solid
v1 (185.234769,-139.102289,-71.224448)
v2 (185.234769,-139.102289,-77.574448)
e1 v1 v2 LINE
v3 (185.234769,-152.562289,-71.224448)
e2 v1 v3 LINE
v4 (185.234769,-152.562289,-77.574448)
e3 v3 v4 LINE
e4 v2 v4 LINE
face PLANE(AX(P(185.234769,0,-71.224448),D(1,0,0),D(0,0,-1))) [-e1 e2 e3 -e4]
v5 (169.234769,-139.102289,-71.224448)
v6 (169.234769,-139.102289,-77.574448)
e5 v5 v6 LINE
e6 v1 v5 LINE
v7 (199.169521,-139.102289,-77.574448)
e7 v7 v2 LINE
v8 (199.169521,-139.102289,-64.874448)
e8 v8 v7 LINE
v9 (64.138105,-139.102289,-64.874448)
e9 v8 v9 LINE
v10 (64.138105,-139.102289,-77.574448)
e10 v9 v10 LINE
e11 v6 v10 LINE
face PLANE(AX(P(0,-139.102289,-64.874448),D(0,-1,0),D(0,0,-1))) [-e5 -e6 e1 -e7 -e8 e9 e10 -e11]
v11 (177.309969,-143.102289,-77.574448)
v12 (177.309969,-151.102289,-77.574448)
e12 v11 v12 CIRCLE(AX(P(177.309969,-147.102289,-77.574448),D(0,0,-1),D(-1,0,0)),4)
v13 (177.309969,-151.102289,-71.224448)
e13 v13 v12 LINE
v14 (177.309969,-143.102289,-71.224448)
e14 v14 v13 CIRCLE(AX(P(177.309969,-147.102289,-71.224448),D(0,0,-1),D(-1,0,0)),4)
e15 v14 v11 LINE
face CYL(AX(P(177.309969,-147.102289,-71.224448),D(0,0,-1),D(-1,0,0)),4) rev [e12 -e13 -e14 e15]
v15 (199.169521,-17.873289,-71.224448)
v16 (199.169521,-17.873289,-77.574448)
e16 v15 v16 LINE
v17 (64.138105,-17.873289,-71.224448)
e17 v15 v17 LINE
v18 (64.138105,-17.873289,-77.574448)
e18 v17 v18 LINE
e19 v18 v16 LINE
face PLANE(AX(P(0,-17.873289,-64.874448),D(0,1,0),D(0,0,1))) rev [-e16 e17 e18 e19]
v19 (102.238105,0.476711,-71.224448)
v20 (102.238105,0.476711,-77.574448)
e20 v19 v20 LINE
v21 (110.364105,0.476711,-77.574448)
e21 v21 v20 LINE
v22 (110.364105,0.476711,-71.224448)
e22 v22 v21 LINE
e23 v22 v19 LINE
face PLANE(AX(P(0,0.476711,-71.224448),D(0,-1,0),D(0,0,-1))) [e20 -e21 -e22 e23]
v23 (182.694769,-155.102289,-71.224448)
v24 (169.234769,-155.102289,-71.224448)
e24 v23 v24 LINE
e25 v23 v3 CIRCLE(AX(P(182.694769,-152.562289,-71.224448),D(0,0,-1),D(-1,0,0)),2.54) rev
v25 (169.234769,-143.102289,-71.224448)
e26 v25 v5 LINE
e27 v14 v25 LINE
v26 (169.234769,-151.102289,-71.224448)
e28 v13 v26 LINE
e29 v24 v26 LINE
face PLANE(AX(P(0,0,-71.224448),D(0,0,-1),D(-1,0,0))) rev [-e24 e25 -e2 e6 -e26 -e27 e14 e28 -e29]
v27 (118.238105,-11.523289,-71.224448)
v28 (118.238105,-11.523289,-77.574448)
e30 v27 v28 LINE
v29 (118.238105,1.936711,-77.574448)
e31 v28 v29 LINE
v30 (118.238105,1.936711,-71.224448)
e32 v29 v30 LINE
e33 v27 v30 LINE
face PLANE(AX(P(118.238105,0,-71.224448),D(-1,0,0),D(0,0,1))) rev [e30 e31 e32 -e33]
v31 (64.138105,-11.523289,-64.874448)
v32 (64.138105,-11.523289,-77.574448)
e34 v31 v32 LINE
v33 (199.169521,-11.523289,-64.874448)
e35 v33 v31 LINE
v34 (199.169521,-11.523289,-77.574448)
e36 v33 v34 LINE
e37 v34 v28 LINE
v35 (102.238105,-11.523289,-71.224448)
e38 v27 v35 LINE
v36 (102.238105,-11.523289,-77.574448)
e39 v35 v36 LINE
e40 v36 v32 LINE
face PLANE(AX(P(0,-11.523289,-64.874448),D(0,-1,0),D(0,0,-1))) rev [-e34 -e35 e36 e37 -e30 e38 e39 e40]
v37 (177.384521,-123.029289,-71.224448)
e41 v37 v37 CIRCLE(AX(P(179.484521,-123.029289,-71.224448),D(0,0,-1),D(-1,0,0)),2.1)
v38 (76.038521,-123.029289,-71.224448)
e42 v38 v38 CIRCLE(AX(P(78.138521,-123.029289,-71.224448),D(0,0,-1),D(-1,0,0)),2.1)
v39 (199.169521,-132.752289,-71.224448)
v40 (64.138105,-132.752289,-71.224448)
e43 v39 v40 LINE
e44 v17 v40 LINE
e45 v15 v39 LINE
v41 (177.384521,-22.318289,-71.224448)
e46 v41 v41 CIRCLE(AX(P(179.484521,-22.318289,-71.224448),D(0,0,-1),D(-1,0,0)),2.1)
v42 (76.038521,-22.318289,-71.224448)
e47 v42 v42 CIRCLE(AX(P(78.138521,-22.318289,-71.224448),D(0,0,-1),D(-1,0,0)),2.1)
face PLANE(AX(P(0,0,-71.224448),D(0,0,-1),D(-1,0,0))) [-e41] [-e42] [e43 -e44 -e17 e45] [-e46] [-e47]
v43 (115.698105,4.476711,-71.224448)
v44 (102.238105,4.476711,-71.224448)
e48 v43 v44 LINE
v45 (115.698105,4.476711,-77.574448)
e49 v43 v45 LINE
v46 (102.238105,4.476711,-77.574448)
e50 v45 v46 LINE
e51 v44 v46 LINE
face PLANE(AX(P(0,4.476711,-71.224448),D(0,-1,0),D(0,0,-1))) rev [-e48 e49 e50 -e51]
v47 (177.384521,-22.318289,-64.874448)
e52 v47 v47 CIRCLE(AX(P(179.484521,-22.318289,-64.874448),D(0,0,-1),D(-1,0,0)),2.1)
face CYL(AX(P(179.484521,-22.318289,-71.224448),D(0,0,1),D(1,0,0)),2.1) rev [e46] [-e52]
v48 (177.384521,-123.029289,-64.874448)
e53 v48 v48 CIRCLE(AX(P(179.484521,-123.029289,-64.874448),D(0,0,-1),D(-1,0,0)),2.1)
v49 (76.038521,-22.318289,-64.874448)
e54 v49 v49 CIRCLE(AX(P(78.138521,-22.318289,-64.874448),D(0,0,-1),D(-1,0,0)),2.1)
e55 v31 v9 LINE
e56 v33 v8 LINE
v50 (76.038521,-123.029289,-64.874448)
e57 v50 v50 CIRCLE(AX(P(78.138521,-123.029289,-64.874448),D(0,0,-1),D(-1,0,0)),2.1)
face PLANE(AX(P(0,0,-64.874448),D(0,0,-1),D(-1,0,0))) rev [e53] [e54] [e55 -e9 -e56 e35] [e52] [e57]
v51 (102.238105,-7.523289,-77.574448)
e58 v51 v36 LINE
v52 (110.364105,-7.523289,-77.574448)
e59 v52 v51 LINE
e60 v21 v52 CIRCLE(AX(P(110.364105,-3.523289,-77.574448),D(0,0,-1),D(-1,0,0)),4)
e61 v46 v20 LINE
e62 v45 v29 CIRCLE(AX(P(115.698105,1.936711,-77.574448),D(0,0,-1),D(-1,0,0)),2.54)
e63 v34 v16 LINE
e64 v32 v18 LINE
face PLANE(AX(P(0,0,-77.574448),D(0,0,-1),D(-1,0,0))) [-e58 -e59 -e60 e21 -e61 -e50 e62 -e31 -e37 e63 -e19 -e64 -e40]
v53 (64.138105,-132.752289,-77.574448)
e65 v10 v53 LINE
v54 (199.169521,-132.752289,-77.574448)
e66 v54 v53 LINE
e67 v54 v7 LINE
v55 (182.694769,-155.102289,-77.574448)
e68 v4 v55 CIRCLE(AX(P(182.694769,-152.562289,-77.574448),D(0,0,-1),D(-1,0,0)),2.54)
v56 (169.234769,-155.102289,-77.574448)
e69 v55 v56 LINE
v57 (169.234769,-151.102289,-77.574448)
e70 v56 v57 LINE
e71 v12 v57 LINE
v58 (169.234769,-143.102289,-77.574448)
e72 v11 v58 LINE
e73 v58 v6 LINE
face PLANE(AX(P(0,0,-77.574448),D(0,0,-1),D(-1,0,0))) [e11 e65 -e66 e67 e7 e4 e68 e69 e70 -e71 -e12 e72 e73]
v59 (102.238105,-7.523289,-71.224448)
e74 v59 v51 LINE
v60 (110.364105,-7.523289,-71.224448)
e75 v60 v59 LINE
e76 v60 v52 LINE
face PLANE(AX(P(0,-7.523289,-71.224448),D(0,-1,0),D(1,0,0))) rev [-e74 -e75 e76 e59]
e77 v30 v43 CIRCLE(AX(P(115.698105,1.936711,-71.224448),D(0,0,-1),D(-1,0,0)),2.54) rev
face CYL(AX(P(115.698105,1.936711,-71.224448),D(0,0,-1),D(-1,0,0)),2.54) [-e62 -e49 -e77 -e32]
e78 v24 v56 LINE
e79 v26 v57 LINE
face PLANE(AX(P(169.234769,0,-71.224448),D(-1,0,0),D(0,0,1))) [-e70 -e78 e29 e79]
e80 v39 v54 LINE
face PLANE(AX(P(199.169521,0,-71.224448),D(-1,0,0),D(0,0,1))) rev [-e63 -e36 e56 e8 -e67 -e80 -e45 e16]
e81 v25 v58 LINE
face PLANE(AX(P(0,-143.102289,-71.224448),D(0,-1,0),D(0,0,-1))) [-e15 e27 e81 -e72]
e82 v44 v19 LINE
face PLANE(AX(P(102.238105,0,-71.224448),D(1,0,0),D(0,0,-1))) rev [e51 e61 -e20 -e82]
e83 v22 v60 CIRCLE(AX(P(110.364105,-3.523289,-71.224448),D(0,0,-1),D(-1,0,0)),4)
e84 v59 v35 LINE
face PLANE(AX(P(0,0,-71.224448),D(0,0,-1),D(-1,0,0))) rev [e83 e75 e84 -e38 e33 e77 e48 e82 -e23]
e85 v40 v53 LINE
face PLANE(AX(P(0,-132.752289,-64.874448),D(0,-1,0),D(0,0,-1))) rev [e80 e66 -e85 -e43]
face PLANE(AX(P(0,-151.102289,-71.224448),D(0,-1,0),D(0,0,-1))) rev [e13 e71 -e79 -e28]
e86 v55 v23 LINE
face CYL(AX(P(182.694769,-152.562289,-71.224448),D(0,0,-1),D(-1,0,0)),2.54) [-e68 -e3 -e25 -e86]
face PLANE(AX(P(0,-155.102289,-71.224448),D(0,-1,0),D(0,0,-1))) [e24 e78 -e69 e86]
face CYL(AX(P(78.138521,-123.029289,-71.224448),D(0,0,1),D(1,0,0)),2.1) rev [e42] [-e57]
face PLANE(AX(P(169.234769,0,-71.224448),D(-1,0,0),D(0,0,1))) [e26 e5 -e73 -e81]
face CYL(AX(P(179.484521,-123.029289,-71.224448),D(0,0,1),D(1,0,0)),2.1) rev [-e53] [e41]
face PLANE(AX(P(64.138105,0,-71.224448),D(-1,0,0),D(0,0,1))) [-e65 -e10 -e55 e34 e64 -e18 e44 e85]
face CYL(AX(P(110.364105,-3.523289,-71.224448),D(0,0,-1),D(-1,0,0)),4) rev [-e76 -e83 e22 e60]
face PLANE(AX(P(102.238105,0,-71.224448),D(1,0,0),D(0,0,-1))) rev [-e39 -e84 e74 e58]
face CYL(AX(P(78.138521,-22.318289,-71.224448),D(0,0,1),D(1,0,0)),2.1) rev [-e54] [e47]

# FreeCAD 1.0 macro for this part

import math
import FreeCAD as App
import Part
import Sketcher
from FreeCAD import Vector
Q = App.Units.Quantity


def edges_at(feature, points):
    """Names of the edges that pass closest to the given points."""
    edges = feature.Shape.Edges
    near = lambda p: min(range(len(edges)), key=lambda i: edges[i].distToShape(Part.Vertex(*p))[0])
    return sorted({f"Edge{near(p) + 1}" for p in points})

doc = App.newDocument("Part")
params = doc.addObject("Spreadsheet::Sheet", "Params")
for row, (alias, value) in enumerate([
    ("sketch1_diameter", "4.2 mm"),
    ("pad1_length", "6.35 mm"),
    ("sketch2_height", "6.35 mm"),
    ("pad2_length", "6.35 mm"),
    ("pad2_length2", "6.35 mm"),
    ("sketch3_radius", "4 mm"),
    ("sketch3_width", "16 mm"),
    ("pad3_length", "6.35 mm"),
    ("fillet_radius", "2.54 mm"),
    ("fillet2_radius", "2.54 mm"),
], start=1):
    params.set(f"A{row}", alias)
    params.set(f"B{row}", "=" + value)
    params.setAlias(f"B{row}", alias)

body = doc.addObject("PartDesign::Body", "Body")

# Sketch on XY plane
sketch1 = body.newObject("Sketcher::SketchObject", "Sketch")
sketch1.AttachmentSupport = (doc.getObject("XY_Plane"), [""])
sketch1.MapMode = "FlatFace"
sketch1.AttachmentOffset = App.Placement(Vector(0, 0, -64.874448), App.Rotation())
sketch1.addGeometry(Part.LineSegment(Vector(199.169521, -17.873289, 0), Vector(199.169521, -132.752289, 0)), False)
sketch1.addGeometry(Part.LineSegment(Vector(199.169521, -132.752289, 0), Vector(64.138105, -132.752289, 0)), False)
sketch1.addGeometry(Part.LineSegment(Vector(64.138105, -132.752289, 0), Vector(64.138105, -17.873289, 0)), False)
sketch1.addGeometry(Part.LineSegment(Vector(64.138105, -17.873289, 0), Vector(199.169521, -17.873289, 0)), False)
sketch1.addGeometry(Part.Circle(Vector(179.484521, -123.029289, 0), Vector(0, 0, 1), 2.1), False)
sketch1.addGeometry(Part.Circle(Vector(78.138521, -123.029289, 0), Vector(0, 0, 1), 2.1), False)
sketch1.addGeometry(Part.Circle(Vector(179.484521, -22.318289, 0), Vector(0, 0, 1), 2.1), False)
sketch1.addGeometry(Part.Circle(Vector(78.138521, -22.318289, 0), Vector(0, 0, 1), 2.1), False)
sketch1.addConstraint(Sketcher.Constraint("Coincident", 0, 2, 1, 1))
sketch1.addConstraint(Sketcher.Constraint("Coincident", 1, 2, 2, 1))
sketch1.addConstraint(Sketcher.Constraint("Coincident", 2, 2, 3, 1))
sketch1.addConstraint(Sketcher.Constraint("Coincident", 3, 2, 0, 1))
sketch1.addConstraint(Sketcher.Constraint("Vertical", 0))
sketch1.addConstraint(Sketcher.Constraint("Horizontal", 1))
sketch1.addConstraint(Sketcher.Constraint("Vertical", 2))
sketch1.addConstraint(Sketcher.Constraint("Horizontal", 3))
sketch1.addConstraint(Sketcher.Constraint("Equal", 4, 5))
sketch1.addConstraint(Sketcher.Constraint("Equal", 5, 6))
sketch1.addConstraint(Sketcher.Constraint("Equal", 6, 7))
sketch1.addConstraint(Sketcher.Constraint("Horizontal", 4, 3, 5, 3))
sketch1.addConstraint(Sketcher.Constraint("Horizontal", 6, 3, 7, 3))
sketch1.addConstraint(Sketcher.Constraint("Vertical", 4, 3, 6, 3))
sketch1.addConstraint(Sketcher.Constraint("Vertical", 5, 3, 7, 3))
sketch1.addConstraint(Sketcher.Constraint("Diameter", 4, Q("4.2 mm")))
sketch1.addConstraint(Sketcher.Constraint("DistanceY", 0, 2, 0, 1, Q("114.879 mm")))
sketch1.addConstraint(Sketcher.Constraint("DistanceX", 5, 3, 4, 3, Q("101.346 mm")))
sketch1.addConstraint(Sketcher.Constraint("DistanceY", 4, 3, 6, 3, Q("100.711 mm")))
sketch1.addConstraint(Sketcher.Constraint("DistanceX", 4, 3, 0, 2, Q("19.685 mm")))
sketch1.addConstraint(Sketcher.Constraint("DistanceY", 0, 2, 4, 3, Q("9.723 mm")))
sketch1.addConstraint(Sketcher.Constraint("DistanceX", 1, 2, 1, 1, Q("135.031416 mm")))
sketch1.addConstraint(Sketcher.Constraint("DistanceX", -1, 1, 4, 3, Q("179.484521 mm")))
sketch1.addConstraint(Sketcher.Constraint("DistanceY", 4, 3, -1, 1, Q("123.029289 mm")))
sketch1.setExpression("Constraints[15]", "Params.sketch1_diameter")
pad1 = body.newObject("PartDesign::Pad", "Pad")
pad1.Profile = sketch1
pad1.setExpression("Length", "Params.pad1_length")
pad1.Reversed = True

# Sketch on XY plane
sketch2 = body.newObject("Sketcher::SketchObject", "Sketch001")
sketch2.AttachmentSupport = (doc.getObject("XY_Plane"), [""])
sketch2.MapMode = "FlatFace"
sketch2.AttachmentOffset = App.Placement(Vector(0, 0, -71.224448), App.Rotation())
sketch2.addGeometry(Part.LineSegment(Vector(199.169521, -132.752289, 0), Vector(199.169521, -139.102289, 0)), False)
sketch2.addGeometry(Part.LineSegment(Vector(199.169521, -139.102289, 0), Vector(64.138105, -139.102289, 0)), False)
sketch2.addGeometry(Part.LineSegment(Vector(64.138105, -139.102289, 0), Vector(64.138105, -132.752289, 0)), False)
sketch2.addGeometry(Part.LineSegment(Vector(64.138105, -132.752289, 0), Vector(199.169521, -132.752289, 0)), False)
sketch2.addGeometry(Part.LineSegment(Vector(199.169521, -11.523289, 0), Vector(199.169521, -17.873289, 0)), False)
sketch2.addGeometry(Part.LineSegment(Vector(199.169521, -17.873289, 0), Vector(64.138105, -17.873289, 0)), False)
sketch2.addGeometry(Part.LineSegment(Vector(64.138105, -17.873289, 0), Vector(64.138105, -11.523289, 0)), False)
sketch2.addGeometry(Part.LineSegment(Vector(64.138105, -11.523289, 0), Vector(199.169521, -11.523289, 0)), False)
sketch2.addConstraint(Sketcher.Constraint("Coincident", 0, 2, 1, 1))
sketch2.addConstraint(Sketcher.Constraint("Coincident", 1, 2, 2, 1))
sketch2.addConstraint(Sketcher.Constraint("Coincident", 2, 2, 3, 1))
sketch2.addConstraint(Sketcher.Constraint("Coincident", 3, 2, 0, 1))
sketch2.addConstraint(Sketcher.Constraint("Coincident", 4, 2, 5, 1))
sketch2.addConstraint(Sketcher.Constraint("Coincident", 5, 2, 6, 1))
sketch2.addConstraint(Sketcher.Constraint("Coincident", 6, 2, 7, 1))
sketch2.addConstraint(Sketcher.Constraint("Coincident", 7, 2, 4, 1))
sketch2.addConstraint(Sketcher.Constraint("Vertical", 0))
sketch2.addConstraint(Sketcher.Constraint("Horizontal", 1))
sketch2.addConstraint(Sketcher.Constraint("Vertical", 2))
sketch2.addConstraint(Sketcher.Constraint("Horizontal", 3))
sketch2.addConstraint(Sketcher.Constraint("Vertical", 4))
sketch2.addConstraint(Sketcher.Constraint("Horizontal", 5))
sketch2.addConstraint(Sketcher.Constraint("Vertical", 6))
sketch2.addConstraint(Sketcher.Constraint("Horizontal", 7))
sketch2.addConstraint(Sketcher.Constraint("Vertical", 3, 2, 4, 2))
sketch2.addConstraint(Sketcher.Constraint("Vertical", 2, 2, 5, 2))
sketch2.addConstraint(Sketcher.Constraint("Equal", 2, 4))
sketch2.addConstraint(Sketcher.Constraint("DistanceY", 0, 2, 0, 1, Q("6.35 mm")))
sketch2.addConstraint(Sketcher.Constraint("DistanceY", 3, 2, 4, 2, Q("114.879 mm")))
sketch2.addConstraint(Sketcher.Constraint("DistanceX", 1, 2, 1, 1, Q("135.031416 mm")))
sketch2.addConstraint(Sketcher.Constraint("DistanceX", -1, 1, 0, 2, Q("199.169521 mm")))
sketch2.addConstraint(Sketcher.Constraint("DistanceY", 0, 2, -1, 1, Q("139.102289 mm")))
sketch2.setExpression("Constraints[19]", "Params.sketch2_height")
pad2 = body.newObject("PartDesign::Pad", "Pad001")
pad2.Profile = sketch2
pad2.Type = "TwoLengths"
pad2.setExpression("Length", "Params.pad2_length")
pad2.setExpression("Length2", "Params.pad2_length2")
pad2.Reversed = True

# Sketch on XY plane
sketch3 = body.newObject("Sketcher::SketchObject", "Sketch002")
sketch3.AttachmentSupport = (doc.getObject("XY_Plane"), [""])
sketch3.MapMode = "FlatFace"
sketch3.AttachmentOffset = App.Placement(Vector(0, 0, -77.574448), App.Rotation())
sketch3.addGeometry(Part.LineSegment(Vector(118.238105, 4.476711, 0), Vector(118.238105, -11.523289, 0)), False)
sketch3.addGeometry(Part.LineSegment(Vector(118.238105, -11.523289, 0), Vector(102.238105, -11.523289, 0)), False)
sketch3.addGeometry(Part.LineSegment(Vector(102.238105, -11.523289, 0), Vector(102.238105, -7.523289, 0)), False)
sketch3.addGeometry(Part.LineSegment(Vector(102.238105, -7.523289, 0), Vector(110.364105, -7.523289, 0)), False)
sketch3.addGeometry(Part.ArcOfCircle(Part.Circle(Vector(110.364105, -3.523289, 0), Vector(0, 0, 1), 4), math.radians(-90), math.radians(90)), False)
sketch3.addGeometry(Part.LineSegment(Vector(110.364105, 0.476711, 0), Vector(102.238105, 0.476711, 0)), False)
sketch3.addGeometry(Part.LineSegment(Vector(102.238105, 0.476711, 0), Vector(102.238105, 4.476711, 0)), False)
sketch3.addGeometry(Part.LineSegment(Vector(102.238105, 4.476711, 0), Vector(118.238105, 4.476711, 0)), False)
sketch3.addGeometry(Part.LineSegment(Vector(169.234769, -139.102289, 0), Vector(185.234769, -139.102289, 0)), False)
sketch3.addGeometry(Part.LineSegment(Vector(185.234769, -139.102289, 0), Vector(185.234769, -155.102289, 0)), False)
sketch3.addGeometry(Part.LineSegment(Vector(185.234769, -155.102289, 0), Vector(169.234769, -155.102289, 0)), False)
sketch3.addGeometry(Part.LineSegment(Vector(169.234769, -155.102289, 0), Vector(169.234769, -151.102289, 0)), False)
sketch3.addGeometry(Part.LineSegment(Vector(169.234769, -151.102289, 0), Vector(177.309969, -151.102289, 0)), False)
sketch3.addGeometry(Part.ArcOfCircle(Part.Circle(Vector(177.309969, -147.102289, 0), Vector(0, 0, 1), 4), math.radians(-90), math.radians(90)), False)
sketch3.addGeometry(Part.LineSegment(Vector(177.309969, -143.102289, 0), Vector(169.234769, -143.102289, 0)), False)
sketch3.addGeometry(Part.LineSegment(Vector(169.234769, -143.102289, 0), Vector(169.234769, -139.102289, 0)), False)
sketch3.addConstraint(Sketcher.Constraint("Coincident", 0, 2, 1, 1))
sketch3.addConstraint(Sketcher.Constraint("Coincident", 1, 2, 2, 1))
sketch3.addConstraint(Sketcher.Constraint("Coincident", 2, 2, 3, 1))
sketch3.addConstraint(Sketcher.Constraint("Tangent", 3, 2, 4, 1))
sketch3.addConstraint(Sketcher.Constraint("Tangent", 4, 2, 5, 1))
sketch3.addConstraint(Sketcher.Constraint("Coincident", 5, 2, 6, 1))
sketch3.addConstraint(Sketcher.Constraint("Coincident", 6, 2, 7, 1))
sketch3.addConstraint(Sketcher.Constraint("Coincident", 7, 2, 0, 1))
sketch3.addConstraint(Sketcher.Constraint("Coincident", 8, 2, 9, 1))
sketch3.addConstraint(Sketcher.Constraint("Coincident", 9, 2, 10, 1))
sketch3.addConstraint(Sketcher.Constraint("Coincident", 10, 2, 11, 1))
sketch3.addConstraint(Sketcher.Constraint("Coincident", 11, 2, 12, 1))
sketch3.addConstraint(Sketcher.Constraint("Tangent", 12, 2, 13, 1))
sketch3.addConstraint(Sketcher.Constraint("Tangent", 13, 2, 14, 1))
sketch3.addConstraint(Sketcher.Constraint("Coincident", 14, 2, 15, 1))
sketch3.addConstraint(Sketcher.Constraint("Coincident", 15, 2, 8, 1))
sketch3.addConstraint(Sketcher.Constraint("Vertical", 0))
sketch3.addConstraint(Sketcher.Constraint("Horizontal", 1))
sketch3.addConstraint(Sketcher.Constraint("Vertical", 2))
sketch3.addConstraint(Sketcher.Constraint("Horizontal", 3))
sketch3.addConstraint(Sketcher.Constraint("Horizontal", 5))
sketch3.addConstraint(Sketcher.Constraint("Vertical", 6))
sketch3.addConstraint(Sketcher.Constraint("Horizontal", 7))
sketch3.addConstraint(Sketcher.Constraint("Horizontal", 8))
sketch3.addConstraint(Sketcher.Constraint("Vertical", 9))
sketch3.addConstraint(Sketcher.Constraint("Horizontal", 10))
sketch3.addConstraint(Sketcher.Constraint("Vertical", 11))
sketch3.addConstraint(Sketcher.Constraint("Horizontal", 12))
sketch3.addConstraint(Sketcher.Constraint("Horizontal", 14))
sketch3.addConstraint(Sketcher.Constraint("Vertical", 15))
sketch3.addConstraint(Sketcher.Constraint("Equal", 4, 13))
sketch3.addConstraint(Sketcher.Constraint("Vertical", 2, 2, 5, 2))
sketch3.addConstraint(Sketcher.Constraint("Vertical", 11, 2, 14, 2))
sketch3.addConstraint(Sketcher.Constraint("Equal", 7, 8))
sketch3.addConstraint(Sketcher.Constraint("Equal", 10, 0))
sketch3.addConstraint(Sketcher.Constraint("Equal", 2, 6))
sketch3.addConstraint(Sketcher.Constraint("Equal", 0, 9))
sketch3.addConstraint(Sketcher.Constraint("Equal", 6, 11))
sketch3.addConstraint(Sketcher.Constraint("Radius", 4, Q("4 mm")))
sketch3.addConstraint(Sketcher.Constraint("DistanceX", 1, 2, 1, 1, Q("16 mm")))
sketch3.addConstraint(Sketcher.Constraint("DistanceX", 3, 1, 3, 2, Q("8.126 mm")))
sketch3.addConstraint(Sketcher.Constraint("DistanceX", 12, 1, 12, 2, Q("8.0752 mm")))
sketch3.addConstraint(Sketcher.Constraint("DistanceY", 13, 3, 4, 3, Q("143.579 mm")))
sketch3.addConstraint(Sketcher.Constraint("DistanceY", 4, 3, -1, 1, Q("3.523289 mm")))
sketch3.addConstraint(Sketcher.Constraint("DistanceX", -1, 1, 13, 3, Q("177.309969 mm")))
sketch3.addConstraint(Sketcher.Constraint("DistanceX", -1, 1, 4, 3, Q("110.364105 mm")))
sketch3.setExpression("Constraints[38]", "Params.sketch3_radius")
sketch3.setExpression("Constraints[39]", "Params.sketch3_width")
pad3 = body.newObject("PartDesign::Pad", "Pad002")
pad3.Profile = sketch3
pad3.setExpression("Length", "Params.pad3_length")
doc.recompute()

fillet = body.newObject("PartDesign::Fillet", "Fillet")
fillet.Base = (pad3, edges_at(pad3, [(118.238, 4.477, -74.399)]))
fillet.setExpression("Radius", "Params.fillet_radius")
doc.recompute()

fillet2 = body.newObject("PartDesign::Fillet", "Fillet001")
fillet2.Base = (fillet, edges_at(fillet, [(185.235, -155.102, -74.399)]))
fillet2.setExpression("Radius", "Params.fillet2_radius")

doc.recompute()
